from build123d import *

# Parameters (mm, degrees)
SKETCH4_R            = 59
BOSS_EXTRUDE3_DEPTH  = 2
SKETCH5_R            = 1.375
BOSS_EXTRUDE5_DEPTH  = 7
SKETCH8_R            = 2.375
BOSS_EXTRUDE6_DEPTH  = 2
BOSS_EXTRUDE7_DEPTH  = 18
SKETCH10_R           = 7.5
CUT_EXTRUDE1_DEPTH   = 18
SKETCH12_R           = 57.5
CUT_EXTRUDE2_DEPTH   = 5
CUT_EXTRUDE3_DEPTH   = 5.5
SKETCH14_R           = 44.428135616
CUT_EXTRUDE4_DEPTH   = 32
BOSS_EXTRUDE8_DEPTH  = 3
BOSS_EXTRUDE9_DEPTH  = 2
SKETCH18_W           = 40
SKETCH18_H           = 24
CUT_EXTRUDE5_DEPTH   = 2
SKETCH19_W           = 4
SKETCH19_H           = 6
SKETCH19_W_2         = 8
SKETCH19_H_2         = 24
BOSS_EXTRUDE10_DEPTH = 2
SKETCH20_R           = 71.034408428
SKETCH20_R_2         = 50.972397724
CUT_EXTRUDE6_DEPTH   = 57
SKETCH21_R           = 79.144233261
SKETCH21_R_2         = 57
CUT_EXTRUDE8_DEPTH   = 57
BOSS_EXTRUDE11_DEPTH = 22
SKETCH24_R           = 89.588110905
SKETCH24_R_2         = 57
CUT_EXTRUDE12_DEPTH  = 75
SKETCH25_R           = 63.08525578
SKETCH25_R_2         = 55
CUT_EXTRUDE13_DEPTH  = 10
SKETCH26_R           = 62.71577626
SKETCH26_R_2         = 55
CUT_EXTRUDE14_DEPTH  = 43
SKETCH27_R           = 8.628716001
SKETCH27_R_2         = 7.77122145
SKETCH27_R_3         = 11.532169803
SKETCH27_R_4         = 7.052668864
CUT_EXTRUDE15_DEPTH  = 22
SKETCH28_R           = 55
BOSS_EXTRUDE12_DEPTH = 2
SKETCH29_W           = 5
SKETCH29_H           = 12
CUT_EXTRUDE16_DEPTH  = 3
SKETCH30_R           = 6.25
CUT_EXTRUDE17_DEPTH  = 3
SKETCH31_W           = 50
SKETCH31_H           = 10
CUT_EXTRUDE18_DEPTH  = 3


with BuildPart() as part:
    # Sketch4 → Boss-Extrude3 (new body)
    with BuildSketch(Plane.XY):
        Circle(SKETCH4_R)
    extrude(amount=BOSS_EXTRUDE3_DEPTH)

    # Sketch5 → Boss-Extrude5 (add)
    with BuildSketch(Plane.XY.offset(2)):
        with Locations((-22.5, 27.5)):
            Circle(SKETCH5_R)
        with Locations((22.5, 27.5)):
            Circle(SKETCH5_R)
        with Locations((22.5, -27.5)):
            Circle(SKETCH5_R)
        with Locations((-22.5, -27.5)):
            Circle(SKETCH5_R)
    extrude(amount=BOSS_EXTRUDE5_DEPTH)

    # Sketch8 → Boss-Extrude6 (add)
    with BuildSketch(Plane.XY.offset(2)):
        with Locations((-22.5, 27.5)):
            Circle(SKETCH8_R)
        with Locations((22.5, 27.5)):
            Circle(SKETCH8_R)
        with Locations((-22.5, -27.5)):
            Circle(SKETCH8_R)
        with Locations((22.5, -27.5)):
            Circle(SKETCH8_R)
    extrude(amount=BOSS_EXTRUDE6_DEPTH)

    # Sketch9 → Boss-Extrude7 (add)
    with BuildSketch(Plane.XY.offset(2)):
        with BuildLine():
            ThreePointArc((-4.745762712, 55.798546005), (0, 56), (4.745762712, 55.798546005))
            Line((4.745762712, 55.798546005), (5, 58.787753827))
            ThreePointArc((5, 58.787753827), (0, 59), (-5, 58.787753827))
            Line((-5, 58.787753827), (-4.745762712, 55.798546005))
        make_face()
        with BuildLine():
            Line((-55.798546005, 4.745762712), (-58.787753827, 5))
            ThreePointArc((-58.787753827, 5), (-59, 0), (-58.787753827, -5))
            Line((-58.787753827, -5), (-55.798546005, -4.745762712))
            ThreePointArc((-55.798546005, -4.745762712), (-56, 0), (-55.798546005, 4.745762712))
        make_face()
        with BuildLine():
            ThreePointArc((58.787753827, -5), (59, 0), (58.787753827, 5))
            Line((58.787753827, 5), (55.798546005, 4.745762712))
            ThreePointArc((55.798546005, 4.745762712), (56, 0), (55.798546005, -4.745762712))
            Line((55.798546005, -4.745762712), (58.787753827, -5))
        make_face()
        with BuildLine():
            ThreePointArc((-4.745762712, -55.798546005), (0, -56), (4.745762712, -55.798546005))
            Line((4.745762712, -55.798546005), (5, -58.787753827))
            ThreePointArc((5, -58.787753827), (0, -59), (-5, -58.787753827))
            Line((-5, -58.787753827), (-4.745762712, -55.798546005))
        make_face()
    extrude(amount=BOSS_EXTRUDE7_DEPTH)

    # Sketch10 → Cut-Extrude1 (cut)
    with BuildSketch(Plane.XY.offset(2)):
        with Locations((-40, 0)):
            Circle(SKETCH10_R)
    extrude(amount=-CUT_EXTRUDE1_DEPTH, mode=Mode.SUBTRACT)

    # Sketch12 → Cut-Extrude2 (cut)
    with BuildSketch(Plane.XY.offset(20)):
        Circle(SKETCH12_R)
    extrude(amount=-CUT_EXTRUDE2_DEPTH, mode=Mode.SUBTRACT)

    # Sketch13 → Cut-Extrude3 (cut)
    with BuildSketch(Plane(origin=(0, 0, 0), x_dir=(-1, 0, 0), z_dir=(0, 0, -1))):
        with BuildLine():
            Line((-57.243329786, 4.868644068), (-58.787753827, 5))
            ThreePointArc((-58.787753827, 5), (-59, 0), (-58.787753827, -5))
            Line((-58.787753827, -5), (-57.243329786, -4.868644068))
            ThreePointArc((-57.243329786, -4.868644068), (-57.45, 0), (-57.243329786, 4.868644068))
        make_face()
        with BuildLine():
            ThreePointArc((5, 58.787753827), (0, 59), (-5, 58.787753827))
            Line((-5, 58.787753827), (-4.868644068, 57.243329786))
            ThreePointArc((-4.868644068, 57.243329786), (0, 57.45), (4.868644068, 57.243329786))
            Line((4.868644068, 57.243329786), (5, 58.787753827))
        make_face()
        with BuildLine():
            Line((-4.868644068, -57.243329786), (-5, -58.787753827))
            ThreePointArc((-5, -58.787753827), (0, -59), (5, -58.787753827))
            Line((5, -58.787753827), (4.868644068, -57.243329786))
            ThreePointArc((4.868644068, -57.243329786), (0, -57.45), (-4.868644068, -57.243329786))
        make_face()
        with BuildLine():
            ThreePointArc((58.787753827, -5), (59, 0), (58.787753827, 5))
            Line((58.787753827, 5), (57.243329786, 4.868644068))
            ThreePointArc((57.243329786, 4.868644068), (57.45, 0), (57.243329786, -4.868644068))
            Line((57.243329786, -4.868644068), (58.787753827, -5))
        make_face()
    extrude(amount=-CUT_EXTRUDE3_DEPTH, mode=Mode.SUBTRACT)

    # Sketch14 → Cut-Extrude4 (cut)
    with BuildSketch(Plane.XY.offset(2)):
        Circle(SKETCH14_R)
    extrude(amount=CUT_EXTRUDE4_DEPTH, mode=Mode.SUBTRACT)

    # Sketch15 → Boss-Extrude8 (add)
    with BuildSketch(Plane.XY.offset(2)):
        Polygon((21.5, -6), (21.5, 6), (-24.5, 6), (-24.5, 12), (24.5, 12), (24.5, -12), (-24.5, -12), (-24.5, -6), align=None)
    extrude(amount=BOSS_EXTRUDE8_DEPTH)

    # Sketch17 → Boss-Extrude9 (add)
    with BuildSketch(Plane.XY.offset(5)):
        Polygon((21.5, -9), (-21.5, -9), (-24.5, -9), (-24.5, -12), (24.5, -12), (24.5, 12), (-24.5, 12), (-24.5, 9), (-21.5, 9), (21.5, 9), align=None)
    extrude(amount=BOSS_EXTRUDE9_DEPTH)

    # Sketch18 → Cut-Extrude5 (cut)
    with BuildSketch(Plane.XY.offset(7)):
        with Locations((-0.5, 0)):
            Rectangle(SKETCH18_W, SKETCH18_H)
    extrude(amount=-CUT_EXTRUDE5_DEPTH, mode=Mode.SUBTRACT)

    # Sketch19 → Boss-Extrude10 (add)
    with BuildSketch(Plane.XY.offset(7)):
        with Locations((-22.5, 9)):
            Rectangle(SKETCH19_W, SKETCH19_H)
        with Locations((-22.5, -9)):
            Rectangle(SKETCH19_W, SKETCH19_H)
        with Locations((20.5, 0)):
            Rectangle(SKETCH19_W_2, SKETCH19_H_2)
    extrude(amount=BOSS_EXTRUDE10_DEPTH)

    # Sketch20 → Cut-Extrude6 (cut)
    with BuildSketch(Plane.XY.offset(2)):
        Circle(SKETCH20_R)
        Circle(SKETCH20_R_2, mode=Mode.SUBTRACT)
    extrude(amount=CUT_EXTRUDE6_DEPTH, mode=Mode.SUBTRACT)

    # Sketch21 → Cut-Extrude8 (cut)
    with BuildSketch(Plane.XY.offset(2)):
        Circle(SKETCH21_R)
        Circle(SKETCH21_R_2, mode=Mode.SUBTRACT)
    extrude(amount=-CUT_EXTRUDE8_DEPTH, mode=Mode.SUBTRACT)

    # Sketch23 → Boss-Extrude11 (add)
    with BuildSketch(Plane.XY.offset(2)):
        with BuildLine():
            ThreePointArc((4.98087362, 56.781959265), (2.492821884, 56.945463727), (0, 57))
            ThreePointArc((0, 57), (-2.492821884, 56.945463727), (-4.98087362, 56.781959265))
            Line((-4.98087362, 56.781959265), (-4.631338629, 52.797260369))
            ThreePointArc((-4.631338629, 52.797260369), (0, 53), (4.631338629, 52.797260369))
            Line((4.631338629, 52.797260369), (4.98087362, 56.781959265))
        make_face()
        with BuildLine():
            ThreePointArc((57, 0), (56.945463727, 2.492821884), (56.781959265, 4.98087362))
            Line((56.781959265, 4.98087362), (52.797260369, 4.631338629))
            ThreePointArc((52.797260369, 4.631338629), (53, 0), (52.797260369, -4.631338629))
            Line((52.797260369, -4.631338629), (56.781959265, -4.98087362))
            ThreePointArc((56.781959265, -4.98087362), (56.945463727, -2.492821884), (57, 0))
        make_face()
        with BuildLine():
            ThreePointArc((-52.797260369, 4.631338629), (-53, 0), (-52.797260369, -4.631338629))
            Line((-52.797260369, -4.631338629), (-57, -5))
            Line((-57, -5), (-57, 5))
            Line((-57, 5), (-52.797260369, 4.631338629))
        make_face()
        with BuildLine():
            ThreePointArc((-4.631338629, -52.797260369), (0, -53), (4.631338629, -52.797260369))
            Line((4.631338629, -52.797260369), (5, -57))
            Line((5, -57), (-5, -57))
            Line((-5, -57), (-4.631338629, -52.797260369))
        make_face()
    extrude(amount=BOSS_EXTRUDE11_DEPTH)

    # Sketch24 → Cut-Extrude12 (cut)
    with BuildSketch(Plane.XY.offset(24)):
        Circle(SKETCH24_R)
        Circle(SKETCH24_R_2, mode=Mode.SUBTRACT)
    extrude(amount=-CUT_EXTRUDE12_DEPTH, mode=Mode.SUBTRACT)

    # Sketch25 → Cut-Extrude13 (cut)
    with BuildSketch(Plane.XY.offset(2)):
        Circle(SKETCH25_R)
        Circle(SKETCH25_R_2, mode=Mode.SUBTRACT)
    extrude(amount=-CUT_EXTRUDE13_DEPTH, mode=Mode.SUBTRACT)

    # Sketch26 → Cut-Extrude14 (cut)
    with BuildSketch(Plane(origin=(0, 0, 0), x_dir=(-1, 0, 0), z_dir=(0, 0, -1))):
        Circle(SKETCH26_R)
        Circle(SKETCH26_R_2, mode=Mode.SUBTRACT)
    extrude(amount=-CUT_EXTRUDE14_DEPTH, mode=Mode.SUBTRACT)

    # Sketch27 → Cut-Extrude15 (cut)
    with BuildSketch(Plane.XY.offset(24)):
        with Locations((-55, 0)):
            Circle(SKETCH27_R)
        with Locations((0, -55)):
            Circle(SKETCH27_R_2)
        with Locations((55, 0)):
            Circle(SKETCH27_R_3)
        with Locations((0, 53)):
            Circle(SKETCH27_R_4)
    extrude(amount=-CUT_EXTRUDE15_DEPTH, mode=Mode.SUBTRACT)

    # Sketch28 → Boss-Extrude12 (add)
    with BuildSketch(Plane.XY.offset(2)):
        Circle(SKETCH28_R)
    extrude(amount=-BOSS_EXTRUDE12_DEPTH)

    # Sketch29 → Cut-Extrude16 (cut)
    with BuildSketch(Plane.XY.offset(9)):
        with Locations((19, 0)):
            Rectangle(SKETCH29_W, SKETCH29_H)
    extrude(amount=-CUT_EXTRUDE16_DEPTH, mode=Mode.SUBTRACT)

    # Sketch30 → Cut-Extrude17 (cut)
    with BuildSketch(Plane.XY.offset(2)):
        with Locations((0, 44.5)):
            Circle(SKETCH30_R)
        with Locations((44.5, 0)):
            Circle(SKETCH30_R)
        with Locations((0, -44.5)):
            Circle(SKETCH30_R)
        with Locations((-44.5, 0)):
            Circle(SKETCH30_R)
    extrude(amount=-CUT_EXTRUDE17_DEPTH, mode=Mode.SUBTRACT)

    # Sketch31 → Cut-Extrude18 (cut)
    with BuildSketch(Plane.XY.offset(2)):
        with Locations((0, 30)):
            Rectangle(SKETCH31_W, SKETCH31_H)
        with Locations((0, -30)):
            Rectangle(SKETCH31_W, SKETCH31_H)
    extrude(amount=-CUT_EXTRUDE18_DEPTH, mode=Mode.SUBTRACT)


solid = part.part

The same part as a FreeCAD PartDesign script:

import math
import FreeCAD as App
import Part
import Sketcher
from FreeCAD import Vector

doc = App.newDocument("Part")
body = doc.addObject("PartDesign::Body", "Body")

# Sketch on XY plane
sketch1 = doc.addObject("Sketcher::SketchObject", "Sketch")
body.addObject(sketch1)
sketch1.AttachmentSupport = (doc.XY_Plane, [""])
sketch1.MapMode = "FlatFace"
sketch1.addGeometry(Part.Circle(Vector(0, 0, 0), Vector(0, 0, 1), 59), False)
sketch1.addConstraint(Sketcher.Constraint("Coincident", 0, 3, -1, 1))
sketch1.addConstraint(Sketcher.Constraint("Diameter", 0, 118.0))
pad1 = doc.addObject("PartDesign::Pad", "Pad")
body.addObject(pad1)
pad1.Profile = sketch1
pad1.Length = 2

# Sketch on XY plane
sketch2 = doc.addObject("Sketcher::SketchObject", "Sketch001")
body.addObject(sketch2)
sketch2.AttachmentSupport = (doc.XY_Plane, [""])
sketch2.MapMode = "FlatFace"
sketch2.AttachmentOffset = App.Placement(Vector(0, 0, 2), App.Rotation())
sketch2.addGeometry(Part.Circle(Vector(-22.5, 27.5, 0), Vector(0, 0, 1), 1.4), False)
sketch2.addGeometry(Part.Circle(Vector(22.5, 27.5, 0), Vector(0, 0, 1), 1.4), False)
sketch2.addGeometry(Part.Circle(Vector(22.5, -27.5, 0), Vector(0, 0, 1), 1.4), False)
sketch2.addGeometry(Part.Circle(Vector(-22.5, -27.5, 0), Vector(0, 0, 1), 1.4), False)
sketch2.addConstraint(Sketcher.Constraint("Equal", 0, 1))
sketch2.addConstraint(Sketcher.Constraint("Equal", 1, 2))
sketch2.addConstraint(Sketcher.Constraint("Equal", 2, 3))
sketch2.addConstraint(Sketcher.Constraint("Symmetric", 0, 3, 2, 3, -1, 1))
sketch2.addConstraint(Sketcher.Constraint("Symmetric", 1, 3, 3, 3, -1, 1))
sketch2.addConstraint(Sketcher.Constraint("Symmetric", 0, 3, 1, 3, -2))
sketch2.addConstraint(Sketcher.Constraint("Diameter", 0, 2.75))
sketch2.addConstraint(Sketcher.Constraint("DistanceX", 0, 3, 1, 3, 45.0))
sketch2.addConstraint(Sketcher.Constraint("DistanceY", 2, 3, 1, 3, 55.0))
pad2 = doc.addObject("PartDesign::Pad", "Pad001")
body.addObject(pad2)
pad2.Profile = sketch2
pad2.Length = 7

# Sketch on XY plane
sketch3 = doc.addObject("Sketcher::SketchObject", "Sketch002")
body.addObject(sketch3)
sketch3.AttachmentSupport = (doc.XY_Plane, [""])
sketch3.MapMode = "FlatFace"
sketch3.AttachmentOffset = App.Placement(Vector(0, 0, 2), App.Rotation())
sketch3.addGeometry(Part.Circle(Vector(-22.5, 27.5, 0), Vector(0, 0, 1), 2.4), False)
sketch3.addGeometry(Part.Circle(Vector(22.5, 27.5, 0), Vector(0, 0, 1), 2.4), False)
sketch3.addGeometry(Part.Circle(Vector(-22.5, -27.5, 0), Vector(0, 0, 1), 2.4), False)
sketch3.addGeometry(Part.Circle(Vector(22.5, -27.5, 0), Vector(0, 0, 1), 2.4), False)
sketch3.addConstraint(Sketcher.Constraint("Equal", 0, 1))
sketch3.addConstraint(Sketcher.Constraint("Equal", 1, 2))
sketch3.addConstraint(Sketcher.Constraint("Equal", 2, 3))
sketch3.addConstraint(Sketcher.Constraint("Symmetric", 1, 3, 2, 3, -1, 1))
sketch3.addConstraint(Sketcher.Constraint("Symmetric", 0, 3, 3, 3, -1, 1))
sketch3.addConstraint(Sketcher.Constraint("Symmetric", 0, 3, 1, 3, -2))
sketch3.addConstraint(Sketcher.Constraint("Diameter", 0, 4.75))
sketch3.addConstraint(Sketcher.Constraint("DistanceX", 0, 3, 1, 3, 45.0))
sketch3.addConstraint(Sketcher.Constraint("DistanceY", 2, 3, 0, 3, 55.0))
pad3 = doc.addObject("PartDesign::Pad", "Pad002")
body.addObject(pad3)
pad3.Profile = sketch3
pad3.Length = 2

# Sketch on XY plane
sketch4 = doc.addObject("Sketcher::SketchObject", "Sketch003")
body.addObject(sketch4)
sketch4.AttachmentSupport = (doc.XY_Plane, [""])
sketch4.MapMode = "FlatFace"
sketch4.AttachmentOffset = App.Placement(Vector(0, 0, 2), App.Rotation())
sketch4.addGeometry(Part.ArcOfCircle(Part.Circle(Vector(0, 0, 0), Vector(0, 0, 1), 56), math.radians(85.14), math.radians(94.86)), False)
sketch4.addGeometry(Part.LineSegment(Vector(4.7, 55.8, 0), Vector(5, 58.8, 0)), False)
sketch4.addGeometry(Part.ArcOfCircle(Part.Circle(Vector(0, 0, 0), Vector(0, 0, 1), 59), math.radians(85.14), math.radians(94.86)), False)
sketch4.addGeometry(Part.LineSegment(Vector(-5, 58.8, 0), Vector(-4.7, 55.8, 0)), False)
sketch4.addGeometry(Part.LineSegment(Vector(-55.8, 4.7, 0), Vector(-58.8, 5, 0)), False)
sketch4.addGeometry(Part.ArcOfCircle(Part.Circle(Vector(0, 0, 0), Vector(0, 0, 1), 59), math.radians(175.14), math.radians(184.86)), False)
sketch4.addGeometry(Part.LineSegment(Vector(-58.8, -5, 0), Vector(-55.8, -4.7, 0)), False)
sketch4.addGeometry(Part.ArcOfCircle(Part.Circle(Vector(0, 0, 0), Vector(0, 0, 1), 56), math.radians(175.14), math.radians(184.86)), False)
sketch4.addGeometry(Part.ArcOfCircle(Part.Circle(Vector(0, 0, 0), Vector(0, 0, 1), 59), math.radians(-4.86), math.radians(4.86)), False)
sketch4.addGeometry(Part.LineSegment(Vector(58.8, 5, 0), Vector(55.8, 4.7, 0)), False)
sketch4.addGeometry(Part.ArcOfCircle(Part.Circle(Vector(0, 0, 0), Vector(0, 0, 1), 56), math.radians(-4.86), math.radians(4.86)), False)
sketch4.addGeometry(Part.LineSegment(Vector(55.8, -4.7, 0), Vector(58.8, -5, 0)), False)
sketch4.addGeometry(Part.ArcOfCircle(Part.Circle(Vector(0, 0, 0), Vector(0, 0, 1), 56), math.radians(-94.86), math.radians(-85.14)), False)
sketch4.addGeometry(Part.LineSegment(Vector(-4.7, -55.8, 0), Vector(-5, -58.8, 0)), False)
sketch4.addGeometry(Part.ArcOfCircle(Part.Circle(Vector(0, 0, 0), Vector(0, 0, 1), 59), math.radians(-94.86), math.radians(-85.14)), False)
sketch4.addGeometry(Part.LineSegment(Vector(5, -58.8, 0), Vector(4.7, -55.8, 0)), False)
sketch4.addConstraint(Sketcher.Constraint("Coincident", 0, 1, 1, 1))
sketch4.addConstraint(Sketcher.Constraint("Coincident", 1, 2, 2, 1))
sketch4.addConstraint(Sketcher.Constraint("Coincident", 2, 2, 3, 1))
sketch4.addConstraint(Sketcher.Constraint("Coincident", 3, 2, 0, 2))
sketch4.addConstraint(Sketcher.Constraint("Coincident", 4, 2, 5, 1))
sketch4.addConstraint(Sketcher.Constraint("Coincident", 5, 2, 6, 1))
sketch4.addConstraint(Sketcher.Constraint("Coincident", 6, 2, 7, 2))
sketch4.addConstraint(Sketcher.Constraint("Coincident", 7, 1, 4, 1))
sketch4.addConstraint(Sketcher.Constraint("Coincident", 8, 2, 9, 1))
sketch4.addConstraint(Sketcher.Constraint("Coincident", 9, 2, 10, 2))
sketch4.addConstraint(Sketcher.Constraint("Coincident", 10, 1, 11, 1))
sketch4.addConstraint(Sketcher.Constraint("Coincident", 11, 2, 8, 1))
sketch4.addConstraint(Sketcher.Constraint("Coincident", 12, 1, 13, 1))
sketch4.addConstraint(Sketcher.Constraint("Coincident", 13, 2, 14, 1))
sketch4.addConstraint(Sketcher.Constraint("Coincident", 14, 2, 15, 1))
sketch4.addConstraint(Sketcher.Constraint("Coincident", 15, 2, 12, 2))
sketch4.addConstraint(Sketcher.Constraint("Coincident", 0, 3, -1, 1))
sketch4.addConstraint(Sketcher.Constraint("Coincident", 2, 3, -1, 1))
sketch4.addConstraint(Sketcher.Constraint("Coincident", 5, 3, -1, 1))
sketch4.addConstraint(Sketcher.Constraint("Coincident", 7, 3, -1, 1))
sketch4.addConstraint(Sketcher.Constraint("Coincident", 8, 3, -1, 1))
sketch4.addConstraint(Sketcher.Constraint("Coincident", 10, 3, -1, 1))
sketch4.addConstraint(Sketcher.Constraint("Coincident", 12, 3, -1, 1))
sketch4.addConstraint(Sketcher.Constraint("Coincident", 14, 3, -1, 1))
sketch4.addConstraint(Sketcher.Constraint("Equal", 2, 5))
sketch4.addConstraint(Sketcher.Constraint("Equal", 0, 7))
sketch4.addConstraint(Sketcher.Constraint("Equal", 5, 8))
sketch4.addConstraint(Sketcher.Constraint("Equal", 7, 10))
sketch4.addConstraint(Sketcher.Constraint("Equal", 10, 12))
sketch4.addConstraint(Sketcher.Constraint("Equal", 8, 14))
sketch4.addConstraint(Sketcher.Constraint("Perpendicular", 1, 4))
sketch4.addConstraint(Sketcher.Constraint("Perpendicular", 3, 6))
sketch4.addConstraint(Sketcher.Constraint("Parallel", 6, 9))
sketch4.addConstraint(Sketcher.Constraint("Parallel", 4, 11))
sketch4.addConstraint(Sketcher.Constraint("Perpendicular", 11, 13))
sketch4.addConstraint(Sketcher.Constraint("Perpendicular", 9, 15))
sketch4.addConstraint(Sketcher.Constraint("Horizontal", 1, 2, 2, 2))
sketch4.addConstraint(Sketcher.Constraint("Horizontal", 0, 1, 3, 2))
sketch4.addConstraint(Sketcher.Constraint("Horizontal", 4, 2, 8, 2))
sketch4.addConstraint(Sketcher.Constraint("Horizontal", 6, 2, 10, 1))
sketch4.addConstraint(Sketcher.Constraint("Horizontal", 13, 2, 14, 2))
sketch4.addConstraint(Sketcher.Constraint("Vertical", 4, 2, 5, 2))
sketch4.addConstraint(Sketcher.Constraint("Vertical", 3, 2, 12, 1))
sketch4.addConstraint(Sketcher.Constraint("Radius", 0, 56.0))
sketch4.addConstraint(Sketcher.Constraint("Radius", 2, 59.0))
sketch4.addConstraint(Sketcher.Constraint("DistanceX", -1, 1, 1, 2, 5.0))
sketch4.addConstraint(Sketcher.Constraint("DistanceY", -1, 1, 4, 2, 5.0))
sketch4.addConstraint(Sketcher.Constraint("DistanceX", -1, 1, 0, 1, 4.745763))
pad4 = doc.addObject("PartDesign::Pad", "Pad003")
body.addObject(pad4)
pad4.Profile = sketch4
pad4.Length = 18

# Sketch on XY plane
sketch5 = doc.addObject("Sketcher::SketchObject", "Sketch004")
body.addObject(sketch5)
sketch5.AttachmentSupport = (doc.XY_Plane, [""])
sketch5.MapMode = "FlatFace"
sketch5.AttachmentOffset = App.Placement(Vector(0, 0, 2), App.Rotation())
sketch5.addGeometry(Part.Circle(Vector(-40, 0, 0), Vector(0, 0, 1), 8), False)
sketch5.addConstraint(Sketcher.Constraint("PointOnObject", 0, 3, -1))
sketch5.addConstraint(Sketcher.Constraint("Diameter", 0, 15.0))
sketch5.addConstraint(Sketcher.Constraint("DistanceX", 0, 3, -1, 1, 40.0))
pocket1 = doc.addObject("PartDesign::Pocket", "Pocket")
body.addObject(pocket1)
pocket1.Profile = sketch5
pocket1.Length = 18

# Sketch on XY plane
sketch6 = doc.addObject("Sketcher::SketchObject", "Sketch005")
body.addObject(sketch6)
sketch6.AttachmentSupport = (doc.XY_Plane, [""])
sketch6.MapMode = "FlatFace"
sketch6.AttachmentOffset = App.Placement(Vector(0, 0, 20), App.Rotation())
sketch6.addGeometry(Part.Circle(Vector(0, 0, 0), Vector(0, 0, 1), 58), False)
sketch6.addConstraint(Sketcher.Constraint("Coincident", 0, 3, -1, 1))
sketch6.addConstraint(Sketcher.Constraint("Diameter", 0, 115.0))
pocket2 = doc.addObject("PartDesign::Pocket", "Pocket001")
body.addObject(pocket2)
pocket2.Profile = sketch6
pocket2.Length = 5

# Sketch on XY plane
sketch7 = doc.addObject("Sketcher::SketchObject", "Sketch006")
body.addObject(sketch7)
sketch7.AttachmentSupport = (doc.XY_Plane, [""])
sketch7.MapMode = "FlatFace"
sketch7.addGeometry(Part.LineSegment(Vector(57.2, 4.9, 0), Vector(58.8, 5, 0)), False)
sketch7.addGeometry(Part.ArcOfCircle(Part.Circle(Vector(0, 0, 0), Vector(0, 0, 1), 59), math.radians(-4.86), math.radians(4.86)), False)
sketch7.addGeometry(Part.LineSegment(Vector(58.8, -5, 0), Vector(57.2, -4.9, 0)), False)
sketch7.addGeometry(Part.ArcOfCircle(Part.Circle(Vector(0, 0, 0), Vector(0, 0, 1), 57.5), math.radians(-4.86), math.radians(4.86)), False)
sketch7.addGeometry(Part.ArcOfCircle(Part.Circle(Vector(0, 0, 0), Vector(0, 0, 1), 59), math.radians(85.14), math.radians(94.86)), False)
sketch7.addGeometry(Part.LineSegment(Vector(5, 58.8, 0), Vector(4.9, 57.2, 0)), False)
sketch7.addGeometry(Part.ArcOfCircle(Part.Circle(Vector(0, 0, 0), Vector(0, 0, 1), 57.5), math.radians(85.14), math.radians(94.86)), False)
sketch7.addGeometry(Part.LineSegment(Vector(-4.9, 57.2, 0), Vector(-5, 58.8, 0)), False)
sketch7.addGeometry(Part.LineSegment(Vector(4.9, -57.2, 0), Vector(5, -58.8, 0)), False)
sketch7.addGeometry(Part.ArcOfCircle(Part.Circle(Vector(0, 0, 0), Vector(0, 0, 1), 59), math.radians(-94.86), math.radians(-85.14)), False)
sketch7.addGeometry(Part.LineSegment(Vector(-5, -58.8, 0), Vector(-4.9, -57.2, 0)), False)
sketch7.addGeometry(Part.ArcOfCircle(Part.Circle(Vector(0, 0, 0), Vector(0, 0, 1), 57.5), math.radians(-94.86), math.radians(-85.14)), False)
sketch7.addGeometry(Part.ArcOfCircle(Part.Circle(Vector(0, 0, 0), Vector(0, 0, 1), 59), math.radians(175.14), math.radians(184.86)), False)
sketch7.addGeometry(Part.LineSegment(Vector(-58.8, 5, 0), Vector(-57.2, 4.9, 0)), False)
sketch7.addGeometry(Part.ArcOfCircle(Part.Circle(Vector(0, 0, 0), Vector(0, 0, 1), 57.5), math.radians(175.14), math.radians(184.86)), False)
sketch7.addGeometry(Part.LineSegment(Vector(-57.2, -4.9, 0), Vector(-58.8, -5, 0)), False)
sketch7.addConstraint(Sketcher.Constraint("Coincident", 0, 2, 1, 2))
sketch7.addConstraint(Sketcher.Constraint("Coincident", 1, 1, 2, 1))
sketch7.addConstraint(Sketcher.Constraint("Coincident", 2, 2, 3, 1))
sketch7.addConstraint(Sketcher.Constraint("Coincident", 3, 2, 0, 1))
sketch7.addConstraint(Sketcher.Constraint("Coincident", 4, 1, 5, 1))
sketch7.addConstraint(Sketcher.Constraint("Coincident", 5, 2, 6, 1))
sketch7.addConstraint(Sketcher.Constraint("Coincident", 6, 2, 7, 1))
sketch7.addConstraint(Sketcher.Constraint("Coincident", 7, 2, 4, 2))
sketch7.addConstraint(Sketcher.Constraint("Coincident", 8, 2, 9, 2))
sketch7.addConstraint(Sketcher.Constraint("Coincident", 9, 1, 10, 1))
sketch7.addConstraint(Sketcher.Constraint("Coincident", 10, 2, 11, 1))
sketch7.addConstraint(Sketcher.Constraint("Coincident", 11, 2, 8, 1))
sketch7.addConstraint(Sketcher.Constraint("Coincident", 12, 1, 13, 1))
sketch7.addConstraint(Sketcher.Constraint("Coincident", 13, 2, 14, 1))
sketch7.addConstraint(Sketcher.Constraint("Coincident", 14, 2, 15, 1))
sketch7.addConstraint(Sketcher.Constraint("Coincident", 15, 2, 12, 2))
sketch7.addConstraint(Sketcher.Constraint("Coincident", 1, 3, -1, 1))
sketch7.addConstraint(Sketcher.Constraint("Coincident", 3, 3, -1, 1))
sketch7.addConstraint(Sketcher.Constraint("Coincident", 4, 3, -1, 1))
sketch7.addConstraint(Sketcher.Constraint("Coincident", 6, 3, -1, 1))
sketch7.addConstraint(Sketcher.Constraint("Coincident", 9, 3, -1, 1))
sketch7.addConstraint(Sketcher.Constraint("Coincident", 11, 3, -1, 1))
sketch7.addConstraint(Sketcher.Constraint("Coincident", 12, 3, -1, 1))
sketch7.addConstraint(Sketcher.Constraint("Coincident", 14, 3, -1, 1))
sketch7.addConstraint(Sketcher.Constraint("Equal", 1, 4))
sketch7.addConstraint(Sketcher.Constraint("Equal", 3, 6))
sketch7.addConstraint(Sketcher.Constraint("Equal", 4, 9))
sketch7.addConstraint(Sketcher.Constraint("Equal", 6, 11))
sketch7.addConstraint(Sketcher.Constraint("Equal", 9, 12))
sketch7.addConstraint(Sketcher.Constraint("Equal", 11, 14))
sketch7.addConstraint(Sketcher.Constraint("Perpendicular", 2, 5))
sketch7.addConstraint(Sketcher.Constraint("Perpendicular", 0, 7))
sketch7.addConstraint(Sketcher.Constraint("Parallel", 7, 8))
sketch7.addConstraint(Sketcher.Constraint("Parallel", 5, 10))
sketch7.addConstraint(Sketcher.Constraint("Perpendicular", 10, 13))
sketch7.addConstraint(Sketcher.Constraint("Perpendicular", 8, 15))
sketch7.addConstraint(Sketcher.Constraint("Horizontal", 5, 2, 6, 2))
sketch7.addConstraint(Sketcher.Constraint("Horizontal", 4, 1, 7, 2))
sketch7.addConstraint(Sketcher.Constraint("Horizontal", 8, 2, 9, 1))
sketch7.addConstraint(Sketcher.Constraint("Horizontal", 0, 2, 12, 1))
sketch7.addConstraint(Sketcher.Constraint("Horizontal", 2, 2, 14, 2))
sketch7.addConstraint(Sketcher.Constraint("Vertical", 0, 2, 1, 1))
sketch7.addConstraint(Sketcher.Constraint("Vertical", 4, 1, 8, 2))
sketch7.addConstraint(Sketcher.Constraint("Radius", 1, 59.0))
sketch7.addConstraint(Sketcher.Constraint("Radius", 3, 57.45))
sketch7.addConstraint(Sketcher.Constraint("DistanceY", -1, 1, 0, 2, 5.0))
sketch7.addConstraint(Sketcher.Constraint("DistanceX", -1, 1, 4, 1, 5.0))
sketch7.addConstraint(Sketcher.Constraint("DistanceX", -1, 1, 2, 2, 57.24333))
pocket3 = doc.addObject("PartDesign::Pocket", "Pocket002")
body.addObject(pocket3)
pocket3.Profile = sketch7
pocket3.Length = 5.5
pocket3.Reversed = True

# Sketch on XY plane
sketch8 = doc.addObject("Sketcher::SketchObject", "Sketch007")
body.addObject(sketch8)
sketch8.AttachmentSupport = (doc.XY_Plane, [""])
sketch8.MapMode = "FlatFace"
sketch8.AttachmentOffset = App.Placement(Vector(0, 0, 2), App.Rotation())
sketch8.addGeometry(Part.Circle(Vector(0, 0, 0), Vector(0, 0, 1), 44), False)
sketch8.addConstraint(Sketcher.Constraint("Coincident", 0, 3, -1, 1))
sketch8.addConstraint(Sketcher.Constraint("Diameter", 0, 88.856271))
pocket4 = doc.addObject("PartDesign::Pocket", "Pocket003")
body.addObject(pocket4)
pocket4.Profile = sketch8
pocket4.Length = 32
pocket4.Reversed = True

# Sketch on XY plane
sketch9 = doc.addObject("Sketcher::SketchObject", "Sketch008")
body.addObject(sketch9)
sketch9.AttachmentSupport = (doc.XY_Plane, [""])
sketch9.MapMode = "FlatFace"
sketch9.AttachmentOffset = App.Placement(Vector(0, 0, 2), App.Rotation())
sketch9.addGeometry(Part.LineSegment(Vector(22, 6, 0), Vector(22, -6, 0)), False)
sketch9.addGeometry(Part.LineSegment(Vector(22, -6, 0), Vector(-24, -6, 0)), False)
sketch9.addGeometry(Part.LineSegment(Vector(-24, -6, 0), Vector(-24, -12, 0)), False)
sketch9.addGeometry(Part.LineSegment(Vector(-24, -12, 0), Vector(24, -12, 0)), False)
sketch9.addGeometry(Part.LineSegment(Vector(24, -12, 0), Vector(24, 12, 0)), False)
sketch9.addGeometry(Part.LineSegment(Vector(24, 12, 0), Vector(-24, 12, 0)), False)
sketch9.addGeometry(Part.LineSegment(Vector(-24, 12, 0), Vector(-24, 6, 0)), False)
sketch9.addGeometry(Part.LineSegment(Vector(-24, 6, 0), Vector(22, 6, 0)), False)
sketch9.addConstraint(Sketcher.Constraint("Coincident", 0, 2, 1, 1))
sketch9.addConstraint(Sketcher.Constraint("Coincident", 1, 2, 2, 1))
sketch9.addConstraint(Sketcher.Constraint("Coincident", 2, 2, 3, 1))
sketch9.addConstraint(Sketcher.Constraint("Coincident", 3, 2, 4, 1))
sketch9.addConstraint(Sketcher.Constraint("Coincident", 4, 2, 5, 1))
sketch9.addConstraint(Sketcher.Constraint("Coincident", 5, 2, 6, 1))
sketch9.addConstraint(Sketcher.Constraint("Coincident", 6, 2, 7, 1))
sketch9.addConstraint(Sketcher.Constraint("Coincident", 7, 2, 0, 1))
sketch9.addConstraint(Sketcher.Constraint("Vertical", 0))
sketch9.addConstraint(Sketcher.Constraint("Horizontal", 1))
sketch9.addConstraint(Sketcher.Constraint("Vertical", 2))
sketch9.addConstraint(Sketcher.Constraint("Horizontal", 3))
sketch9.addConstraint(Sketcher.Constraint("Vertical", 4))
sketch9.addConstraint(Sketcher.Constraint("Horizontal", 5))
sketch9.addConstraint(Sketcher.Constraint("Vertical", 6))
sketch9.addConstraint(Sketcher.Constraint("Horizontal", 7))
sketch9.addConstraint(Sketcher.Constraint("Symmetric", 2, 2, 4, 2, -1, 1))
sketch9.addConstraint(Sketcher.Constraint("Symmetric", 1, 2, 6, 2, -1))
sketch9.addConstraint(Sketcher.Constraint("DistanceX", 1, 2, 1, 1, 46.0))
sketch9.addConstraint(Sketcher.Constraint("DistanceX", 3, 1, 3, 2, 49.0))
sketch9.addConstraint(Sketcher.Constraint("DistanceY", 0, 2, 0, 1, 12.0))
sketch9.addConstraint(Sketcher.Constraint("DistanceY", 2, 2, 2, 1, 6.0))
pad5 = doc.addObject("PartDesign::Pad", "Pad004")
body.addObject(pad5)
pad5.Profile = sketch9
pad5.Length = 3

# Sketch on XY plane
sketch10 = doc.addObject("Sketcher::SketchObject", "Sketch009")
body.addObject(sketch10)
sketch10.AttachmentSupport = (doc.XY_Plane, [""])
sketch10.MapMode = "FlatFace"
sketch10.AttachmentOffset = App.Placement(Vector(0, 0, 5), App.Rotation())
sketch10.addGeometry(Part.LineSegment(Vector(21.5, -9, 0), Vector(-24.5, -9, 0)), False)
sketch10.addGeometry(Part.LineSegment(Vector(-24.5, -9, 0), Vector(-24.5, -12, 0)), False)
sketch10.addGeometry(Part.LineSegment(Vector(-24.5, -12, 0), Vector(24.5, -12, 0)), False)
sketch10.addGeometry(Part.LineSegment(Vector(24.5, -12, 0), Vector(24.5, 12, 0)), False)
sketch10.addGeometry(Part.LineSegment(Vector(24.5, 12, 0), Vector(-24.5, 12, 0)), False)
sketch10.addGeometry(Part.LineSegment(Vector(-24.5, 12, 0), Vector(-24.5, 9, 0)), False)
sketch10.addGeometry(Part.LineSegment(Vector(-24.5, 9, 0), Vector(21.5, 9, 0)), False)
sketch10.addGeometry(Part.LineSegment(Vector(21.5, 9, 0), Vector(21.5, -9, 0)), False)
sketch10.addConstraint(Sketcher.Constraint("Coincident", 0, 2, 1, 1))
sketch10.addConstraint(Sketcher.Constraint("Coincident", 1, 2, 2, 1))
sketch10.addConstraint(Sketcher.Constraint("Coincident", 2, 2, 3, 1))
sketch10.addConstraint(Sketcher.Constraint("Coincident", 3, 2, 4, 1))
sketch10.addConstraint(Sketcher.Constraint("Coincident", 4, 2, 5, 1))
sketch10.addConstraint(Sketcher.Constraint("Coincident", 5, 2, 6, 1))
sketch10.addConstraint(Sketcher.Constraint("Coincident", 6, 2, 7, 1))
sketch10.addConstraint(Sketcher.Constraint("Coincident", 7, 2, 0, 1))
sketch10.addConstraint(Sketcher.Constraint("Horizontal", 0))
sketch10.addConstraint(Sketcher.Constraint("Vertical", 1))
sketch10.addConstraint(Sketcher.Constraint("Horizontal", 2))
sketch10.addConstraint(Sketcher.Constraint("Vertical", 3))
sketch10.addConstraint(Sketcher.Constraint("Horizontal", 4))
sketch10.addConstraint(Sketcher.Constraint("Vertical", 5))
sketch10.addConstraint(Sketcher.Constraint("Horizontal", 6))
sketch10.addConstraint(Sketcher.Constraint("Vertical", 7))
sketch10.addConstraint(Sketcher.Constraint("Symmetric", 1, 2, 3, 2, -1, 1))
sketch10.addConstraint(Sketcher.Constraint("Symmetric", 0, 2, 5, 2, -1))
sketch10.addConstraint(Sketcher.Constraint("DistanceX", 0, 2, 0, 1, 46.0))
sketch10.addConstraint(Sketcher.Constraint("DistanceX", 2, 1, 2, 2, 49.0))
sketch10.addConstraint(Sketcher.Constraint("DistanceY", 1, 2, 1, 1, 3.0))
sketch10.addConstraint(Sketcher.Constraint("DistanceY", 3, 1, 3, 2, 24.0))
pad6 = doc.addObject("PartDesign::Pad", "Pad005")
body.addObject(pad6)
pad6.Profile = sketch10
pad6.Length = 2

# Sketch on XY plane
sketch11 = doc.addObject("Sketcher::SketchObject", "Sketch010")
body.addObject(sketch11)
sketch11.AttachmentSupport = (doc.XY_Plane, [""])
sketch11.MapMode = "FlatFace"
sketch11.AttachmentOffset = App.Placement(Vector(0, 0, 7), App.Rotation())
sketch11.addGeometry(Part.LineSegment(Vector(-20, 12, 0), Vector(-20, -12, 0)), False)
sketch11.addGeometry(Part.LineSegment(Vector(-20, -12, 0), Vector(20, -12, 0)), False)
sketch11.addGeometry(Part.LineSegment(Vector(20, -12, 0), Vector(20, 12, 0)), False)
sketch11.addGeometry(Part.LineSegment(Vector(20, 12, 0), Vector(-20, 12, 0)), False)
sketch11.addConstraint(Sketcher.Constraint("Coincident", 0, 2, 1, 1))
sketch11.addConstraint(Sketcher.Constraint("Coincident", 1, 2, 2, 1))
sketch11.addConstraint(Sketcher.Constraint("Coincident", 2, 2, 3, 1))
sketch11.addConstraint(Sketcher.Constraint("Coincident", 3, 2, 0, 1))
sketch11.addConstraint(Sketcher.Constraint("Vertical", 0))
sketch11.addConstraint(Sketcher.Constraint("Horizontal", 1))
sketch11.addConstraint(Sketcher.Constraint("Vertical", 2))
sketch11.addConstraint(Sketcher.Constraint("Horizontal", 3))
sketch11.addConstraint(Sketcher.Constraint("DistanceX", 1, 1, 1, 2, 40.0))
sketch11.addConstraint(Sketcher.Constraint("DistanceY", 0, 2, 0, 1, 24.0))
sketch11.addConstraint(Sketcher.Constraint("DistanceY", 0, 2, -1, 1, 12.0))
sketch11.addConstraint(Sketcher.Constraint("DistanceX", 0, 2, -1, 1, 20.5))
pocket5 = doc.addObject("PartDesign::Pocket", "Pocket004")
body.addObject(pocket5)
pocket5.Profile = sketch11
pocket5.Length = 2

# Sketch on XY plane
sketch12 = doc.addObject("Sketcher::SketchObject", "Sketch011")
body.addObject(sketch12)
sketch12.AttachmentSupport = (doc.XY_Plane, [""])
sketch12.MapMode = "FlatFace"
sketch12.AttachmentOffset = App.Placement(Vector(0, 0, 7), App.Rotation())
sketch12.addGeometry(Part.LineSegment(Vector(-24.5, 12, 0), Vector(-24.5, 6, 0)), False)
sketch12.addGeometry(Part.LineSegment(Vector(-24.5, 6, 0), Vector(-20.5, 6, 0)), False)
sketch12.addGeometry(Part.LineSegment(Vector(-20.5, 6, 0), Vector(-20.5, 12, 0)), False)
sketch12.addGeometry(Part.LineSegment(Vector(-20.5, 12, 0), Vector(-24.5, 12, 0)), False)
sketch12.addGeometry(Part.LineSegment(Vector(-24.5, -6, 0), Vector(-24.5, -12, 0)), False)
sketch12.addGeometry(Part.LineSegment(Vector(-24.5, -12, 0), Vector(-20.5, -12, 0)), False)
sketch12.addGeometry(Part.LineSegment(Vector(-20.5, -12, 0), Vector(-20.5, -6, 0)), False)
sketch12.addGeometry(Part.LineSegment(Vector(-20.5, -6, 0), Vector(-24.5, -6, 0)), False)
sketch12.addGeometry(Part.LineSegment(Vector(16.5, 12, 0), Vector(16.5, -12, 0)), False)
sketch12.addGeometry(Part.LineSegment(Vector(16.5, -12, 0), Vector(24.5, -12, 0)), False)
sketch12.addGeometry(Part.LineSegment(Vector(24.5, -12, 0), Vector(24.5, 12, 0)), False)
sketch12.addGeometry(Part.LineSegment(Vector(24.5, 12, 0), Vector(16.5, 12, 0)), False)
sketch12.addConstraint(Sketcher.Constraint("Coincident", 0, 2, 1, 1))
sketch12.addConstraint(Sketcher.Constraint("Coincident", 1, 2, 2, 1))
sketch12.addConstraint(Sketcher.Constraint("Coincident", 2, 2, 3, 1))
sketch12.addConstraint(Sketcher.Constraint("Coincident", 3, 2, 0, 1))
sketch12.addConstraint(Sketcher.Constraint("Coincident", 4, 2, 5, 1))
sketch12.addConstraint(Sketcher.Constraint("Coincident", 5, 2, 6, 1))
sketch12.addConstraint(Sketcher.Constraint("Coincident", 6, 2, 7, 1))
sketch12.addConstraint(Sketcher.Constraint("Coincident", 7, 2, 4, 1))
sketch12.addConstraint(Sketcher.Constraint("Coincident", 8, 2, 9, 1))
sketch12.addConstraint(Sketcher.Constraint("Coincident", 9, 2, 10, 1))
sketch12.addConstraint(Sketcher.Constraint("Coincident", 10, 2, 11, 1))
sketch12.addConstraint(Sketcher.Constraint("Coincident", 11, 2, 8, 1))
sketch12.addConstraint(Sketcher.Constraint("Vertical", 0))
sketch12.addConstraint(Sketcher.Constraint("Horizontal", 1))
sketch12.addConstraint(Sketcher.Constraint("Vertical", 2))
sketch12.addConstraint(Sketcher.Constraint("Horizontal", 3))
sketch12.addConstraint(Sketcher.Constraint("Vertical", 4))
sketch12.addConstraint(Sketcher.Constraint("Horizontal", 5))
sketch12.addConstraint(Sketcher.Constraint("Vertical", 6))
sketch12.addConstraint(Sketcher.Constraint("Horizontal", 7))
sketch12.addConstraint(Sketcher.Constraint("Vertical", 8))
sketch12.addConstraint(Sketcher.Constraint("Horizontal", 9))
sketch12.addConstraint(Sketcher.Constraint("Vertical", 10))
sketch12.addConstraint(Sketcher.Constraint("Horizontal", 11))
sketch12.addConstraint(Sketcher.Constraint("Symmetric", 3, 2, 9, 2, -1, 1))
sketch12.addConstraint(Sketcher.Constraint("Symmetric", 4, 2, 10, 2, -1, 1))
sketch12.addConstraint(Sketcher.Constraint("Symmetric", 2, 2, 5, 2, -1))
sketch12.addConstraint(Sketcher.Constraint("Equal", 2, 4))
sketch12.addConstraint(Sketcher.Constraint("DistanceX", 1, 1, 1, 2, 4.0))
sketch12.addConstraint(Sketcher.Constraint("DistanceX", 9, 1, 9, 2, 8.0))
sketch12.addConstraint(Sketcher.Constraint("DistanceY", 0, 2, 0, 1, 6.0))
sketch12.addConstraint(Sketcher.Constraint("DistanceY", 8, 2, 8, 1, 24.0))
sketch12.addConstraint(Sketcher.Constraint("DistanceX", 5, 2, 8, 2, 37.0))
pad7 = doc.addObject("PartDesign::Pad", "Pad006")
body.addObject(pad7)
pad7.Profile = sketch12
pad7.Length = 2

# Sketch on XY plane
sketch13 = doc.addObject("Sketcher::SketchObject", "Sketch012")
body.addObject(sketch13)
sketch13.AttachmentSupport = (doc.XY_Plane, [""])
sketch13.MapMode = "FlatFace"
sketch13.AttachmentOffset = App.Placement(Vector(0, 0, 2), App.Rotation())
sketch13.addGeometry(Part.Circle(Vector(0, 0, 0), Vector(0, 0, 1), 71), False)
sketch13.addGeometry(Part.Circle(Vector(0, 0, 0), Vector(0, 0, 1), 51), False)
sketch13.addConstraint(Sketcher.Constraint("Coincident", 0, 3, -1, 1))
sketch13.addConstraint(Sketcher.Constraint("Coincident", 1, 3, -1, 1))
sketch13.addConstraint(Sketcher.Constraint("Diameter", 0, 142.068817))
sketch13.addConstraint(Sketcher.Constraint("Diameter", 1, 101.944795))
pocket6 = doc.addObject("PartDesign::Pocket", "Pocket005")
body.addObject(pocket6)
pocket6.Profile = sketch13
pocket6.Length = 57
pocket6.Reversed = True

# Sketch on XY plane
sketch14 = doc.addObject("Sketcher::SketchObject", "Sketch013")
body.addObject(sketch14)
sketch14.AttachmentSupport = (doc.XY_Plane, [""])
sketch14.MapMode = "FlatFace"
sketch14.AttachmentOffset = App.Placement(Vector(0, 0, 2), App.Rotation())
sketch14.addGeometry(Part.Circle(Vector(0, 0, 0), Vector(0, 0, 1), 79), False)
sketch14.addGeometry(Part.Circle(Vector(0, 0, 0), Vector(0, 0, 1), 57), False)
sketch14.addConstraint(Sketcher.Constraint("Coincident", 0, 3, -1, 1))
sketch14.addConstraint(Sketcher.Constraint("Coincident", 1, 3, -1, 1))
sketch14.addConstraint(Sketcher.Constraint("Diameter", 1, 114.0))
sketch14.addConstraint(Sketcher.Constraint("Diameter", 0, 158.288467))
pocket7 = doc.addObject("PartDesign::Pocket", "Pocket006")
body.addObject(pocket7)
pocket7.Profile = sketch14
pocket7.Length = 57

# Sketch on XY plane
sketch15 = doc.addObject("Sketcher::SketchObject", "Sketch014")
body.addObject(sketch15)
sketch15.AttachmentSupport = (doc.XY_Plane, [""])
sketch15.MapMode = "FlatFace"
sketch15.AttachmentOffset = App.Placement(Vector(0, 0, 2), App.Rotation())
sketch15.addGeometry(Part.ArcOfCircle(Part.Circle(Vector(0, 0, 0), Vector(0, 0, 1), 57), math.radians(84.99), math.radians(90)), False)
sketch15.addGeometry(Part.ArcOfCircle(Part.Circle(Vector(0, 0, 0), Vector(0, 0, 1), 57), math.radians(90), math.radians(95.01)), False)
sketch15.addGeometry(Part.LineSegment(Vector(-5, 56.8, 0), Vector(-4.6, 52.8, 0)), False)
sketch15.addGeometry(Part.ArcOfCircle(Part.Circle(Vector(0, 0, 0), Vector(0, 0, 1), 53), math.radians(84.99), math.radians(95.01)), False)
sketch15.addGeometry(Part.LineSegment(Vector(4.6, 52.8, 0), Vector(5, 56.8, 0)), False)
sketch15.addGeometry(Part.ArcOfCircle(Part.Circle(Vector(0, 0, 0), Vector(0, 0, 1), 57), math.radians(0), math.radians(5.01)), False)
sketch15.addGeometry(Part.LineSegment(Vector(56.8, 5, 0), Vector(52.8, 4.6, 0)), False)
sketch15.addGeometry(Part.ArcOfCircle(Part.Circle(Vector(0, 0, 0), Vector(0, 0, 1), 53), math.radians(-5.01), math.radians(5.01)), False)
sketch15.addGeometry(Part.LineSegment(Vector(52.8, -4.6, 0), Vector(56.8, -5, 0)), False)
sketch15.addGeometry(Part.ArcOfCircle(Part.Circle(Vector(0, 0, 0), Vector(0, 0, 1), 57), math.radians(-5.01), math.radians(0)), False)
sketch15.addGeometry(Part.ArcOfCircle(Part.Circle(Vector(0, 0, 0), Vector(0, 0, 1), 53), math.radians(174.99), math.radians(185.01)), False)
sketch15.addGeometry(Part.LineSegment(Vector(-52.8, 4.6, 0), Vector(-57, 5, 0)), False)
sketch15.addGeometry(Part.LineSegment(Vector(-57, 5, 0), Vector(-57, -5, 0)), False)
sketch15.addGeometry(Part.LineSegment(Vector(-57, -5, 0), Vector(-52.8, -4.6, 0)), False)
sketch15.addGeometry(Part.ArcOfCircle(Part.Circle(Vector(0, 0, 0), Vector(0, 0, 1), 53), math.radians(-95.01), math.radians(-84.99)), False)
sketch15.addGeometry(Part.LineSegment(Vector(-4.6, -52.8, 0), Vector(-5, -57, 0)), False)
sketch15.addGeometry(Part.LineSegment(Vector(-5, -57, 0), Vector(5, -57, 0)), False)
sketch15.addGeometry(Part.LineSegment(Vector(5, -57, 0), Vector(4.6, -52.8, 0)), False)
sketch15.addConstraint(Sketcher.Constraint("Tangent", 0, 2, 1, 1))
sketch15.addConstraint(Sketcher.Constraint("Coincident", 1, 2, 2, 1))
sketch15.addConstraint(Sketcher.Constraint("Coincident", 2, 2, 3, 2))
sketch15.addConstraint(Sketcher.Constraint("Coincident", 3, 1, 4, 1))
sketch15.addConstraint(Sketcher.Constraint("Coincident", 4, 2, 0, 1))
sketch15.addConstraint(Sketcher.Constraint("Coincident", 5, 2, 6, 1))
sketch15.addConstraint(Sketcher.Constraint("Coincident", 6, 2, 7, 2))
sketch15.addConstraint(Sketcher.Constraint("Coincident", 7, 1, 8, 1))
sketch15.addConstraint(Sketcher.Constraint("Coincident", 8, 2, 9, 1))
sketch15.addConstraint(Sketcher.Constraint("Tangent", 9, 2, 5, 1))
sketch15.addConstraint(Sketcher.Constraint("Coincident", 10, 1, 11, 1))
sketch15.addConstraint(Sketcher.Constraint("Coincident", 11, 2, 12, 1))
sketch15.addConstraint(Sketcher.Constraint("Coincident", 12, 2, 13, 1))
sketch15.addConstraint(Sketcher.Constraint("Coincident", 13, 2, 10, 2))
sketch15.addConstraint(Sketcher.Constraint("Coincident", 14, 1, 15, 1))
sketch15.addConstraint(Sketcher.Constraint("Coincident", 15, 2, 16, 1))
sketch15.addConstraint(Sketcher.Constraint("Coincident", 16, 2, 17, 1))
sketch15.addConstraint(Sketcher.Constraint("Coincident", 17, 2, 14, 2))
sketch15.addConstraint(Sketcher.Constraint("Vertical", 12))
sketch15.addConstraint(Sketcher.Constraint("Horizontal", 16))
sketch15.addConstraint(Sketcher.Constraint("Coincident", 0, 3, -1, 1))
sketch15.addConstraint(Sketcher.Constraint("Coincident", 3, 3, -1, 1))
sketch15.addConstraint(Sketcher.Constraint("Coincident", 5, 3, -1, 1))
sketch15.addConstraint(Sketcher.Constraint("Coincident", 7, 3, -1, 1))
sketch15.addConstraint(Sketcher.Constraint("Coincident", 10, 3, -1, 1))
sketch15.addConstraint(Sketcher.Constraint("Coincident", 14, 3, -1, 1))
sketch15.addConstraint(Sketcher.Constraint("Equal", 0, 1))
sketch15.addConstraint(Sketcher.Constraint("Equal", 1, 5))
sketch15.addConstraint(Sketcher.Constraint("Equal", 3, 7))
sketch15.addConstraint(Sketcher.Constraint("Equal", 5, 9))
sketch15.addConstraint(Sketcher.Constraint("Equal", 7, 10))
sketch15.addConstraint(Sketcher.Constraint("Equal", 10, 14))
sketch15.addConstraint(Sketcher.Constraint("PointOnObject", 0, 2, -2))
sketch15.addConstraint(Sketcher.Constraint("PointOnObject", 9, 2, -1))
sketch15.addConstraint(Sketcher.Constraint("Perpendicular", 2, 6))
sketch15.addConstraint(Sketcher.Constraint("Perpendicular", 4, 8))
sketch15.addConstraint(Sketcher.Constraint("Parallel", 8, 11))
sketch15.addConstraint(Sketcher.Constraint("Parallel", 6, 13))
sketch15.addConstraint(Sketcher.Constraint("Perpendicular", 11, 15))
sketch15.addConstraint(Sketcher.Constraint("Perpendicular", 13, 17))
sketch15.addConstraint(Sketcher.Constraint("Horizontal", 2, 2, 3, 1))
sketch15.addConstraint(Sketcher.Constraint("Horizontal", 1, 2, 4, 2))
sketch15.addConstraint(Sketcher.Constraint("Horizontal", 6, 2, 10, 1))
sketch15.addConstraint(Sketcher.Constraint("Horizontal", 7, 1, 13, 2))
sketch15.addConstraint(Sketcher.Constraint("Horizontal", 14, 1, 17, 2))
sketch15.addConstraint(Sketcher.Constraint("Vertical", 6, 2, 7, 1))
sketch15.addConstraint(Sketcher.Constraint("Vertical", 2, 2, 14, 1))
sketch15.addConstraint(Sketcher.Constraint("Equal", 16, 12))
sketch15.addConstraint(Sketcher.Constraint("Equal", 13, 15))
sketch15.addConstraint(Sketcher.Constraint("Radius", 0, 57.0))
sketch15.addConstraint(Sketcher.Constraint("Radius", 3, 53.0))
sketch15.addConstraint(Sketcher.Constraint("DistanceX", 16, 1, 16, 2, 10.0))
sketch15.addConstraint(Sketcher.Constraint("DistanceX", 11, 2, -1, 1, 57.0))
sketch15.addConstraint(Sketcher.Constraint("DistanceY", 2, 2, 1, 2, 3.984699))
pad8 = doc.addObject("PartDesign::Pad", "Pad007")
body.addObject(pad8)
pad8.Profile = sketch15
pad8.Length = 22

# Sketch on XY plane
sketch16 = doc.addObject("Sketcher::SketchObject", "Sketch015")
body.addObject(sketch16)
sketch16.AttachmentSupport = (doc.XY_Plane, [""])
sketch16.MapMode = "FlatFace"
sketch16.AttachmentOffset = App.Placement(Vector(0, 0, 24), App.Rotation())
sketch16.addGeometry(Part.Circle(Vector(0, 0, 0), Vector(0, 0, 1), 90), False)
sketch16.addGeometry(Part.Circle(Vector(0, 0, 0), Vector(0, 0, 1), 57), False)
sketch16.addConstraint(Sketcher.Constraint("Coincident", 0, 3, -1, 1))
sketch16.addConstraint(Sketcher.Constraint("Coincident", 1, 3, -1, 1))
sketch16.addConstraint(Sketcher.Constraint("Diameter", 1, 114.0))
sketch16.addConstraint(Sketcher.Constraint("Diameter", 0, 179.176222))
pocket8 = doc.addObject("PartDesign::Pocket", "Pocket007")
body.addObject(pocket8)
pocket8.Profile = sketch16
pocket8.Length = 75

# Sketch on XY plane
sketch17 = doc.addObject("Sketcher::SketchObject", "Sketch016")
body.addObject(sketch17)
sketch17.AttachmentSupport = (doc.XY_Plane, [""])
sketch17.MapMode = "FlatFace"
sketch17.AttachmentOffset = App.Placement(Vector(0, 0, 2), App.Rotation())
sketch17.addGeometry(Part.Circle(Vector(0, 0, 0), Vector(0, 0, 1), 63), False)
sketch17.addGeometry(Part.Circle(Vector(0, 0, 0), Vector(0, 0, 1), 55), False)
sketch17.addConstraint(Sketcher.Constraint("Coincident", 0, 3, -1, 1))
sketch17.addConstraint(Sketcher.Constraint("Coincident", 1, 3, -1, 1))
sketch17.addConstraint(Sketcher.Constraint("Diameter", 1, 110.0))
sketch17.addConstraint(Sketcher.Constraint("Diameter", 0, 126.170512))
pocket9 = doc.addObject("PartDesign::Pocket", "Pocket008")
body.addObject(pocket9)
pocket9.Profile = sketch17
pocket9.Length = 10

# Sketch on XY plane
sketch18 = doc.addObject("Sketcher::SketchObject", "Sketch017")
body.addObject(sketch18)
sketch18.AttachmentSupport = (doc.XY_Plane, [""])
sketch18.MapMode = "FlatFace"
sketch18.addGeometry(Part.Circle(Vector(0, 0, 0), Vector(0, 0, 1), 63), False)
sketch18.addGeometry(Part.Circle(Vector(0, 0, 0), Vector(0, 0, 1), 55), False)
sketch18.addConstraint(Sketcher.Constraint("Coincident", 0, 3, -1, 1))
sketch18.addConstraint(Sketcher.Constraint("Coincident", 1, 3, -1, 1))
sketch18.addConstraint(Sketcher.Constraint("Diameter", 1, 110.0))
sketch18.addConstraint(Sketcher.Constraint("Diameter", 0, 125.431553))
pocket10 = doc.addObject("PartDesign::Pocket", "Pocket009")
body.addObject(pocket10)
pocket10.Profile = sketch18
pocket10.Length = 43
pocket10.Reversed = True

# Sketch on XY plane
sketch19 = doc.addObject("Sketcher::SketchObject", "Sketch018")
body.addObject(sketch19)
sketch19.AttachmentSupport = (doc.XY_Plane, [""])
sketch19.MapMode = "FlatFace"
sketch19.AttachmentOffset = App.Placement(Vector(0, 0, 24), App.Rotation())
sketch19.addGeometry(Part.Circle(Vector(-55, 0, 0), Vector(0, 0, 1), 9), False)
sketch19.addGeometry(Part.Circle(Vector(0, -55, 0), Vector(0, 0, 1), 8), False)
sketch19.addGeometry(Part.Circle(Vector(55, 0, 0), Vector(0, 0, 1), 12), False)
sketch19.addGeometry(Part.Circle(Vector(0, 53, 0), Vector(0, 0, 1), 7), False)
sketch19.addConstraint(Sketcher.Constraint("Symmetric", 0, 3, 2, 3, -1, 1))
sketch19.addConstraint(Sketcher.Constraint("PointOnObject", 0, 3, -1))
sketch19.addConstraint(Sketcher.Constraint("PointOnObject", 1, 3, -2))
sketch19.addConstraint(Sketcher.Constraint("PointOnObject", 3, 3, -2))
sketch19.addConstraint(Sketcher.Constraint("DistanceX", 0, 3, -1, 1, 55.0))
sketch19.addConstraint(Sketcher.Constraint("DistanceY", 1, 3, -1, 1, 55.0))
sketch19.addConstraint(Sketcher.Constraint("DistanceY", -1, 1, 3, 3, 53.0))
sketch19.addConstraint(Sketcher.Constraint("Diameter", 2, 23.06434))
sketch19.addConstraint(Sketcher.Constraint("Diameter", 0, 17.257432))
sketch19.addConstraint(Sketcher.Constraint("Diameter", 1, 15.542443))
sketch19.addConstraint(Sketcher.Constraint("Diameter", 3, 14.105338))
pocket11 = doc.addObject("PartDesign::Pocket", "Pocket010")
body.addObject(pocket11)
pocket11.Profile = sketch19
pocket11.Length = 22

# Sketch on XY plane
sketch20 = doc.addObject("Sketcher::SketchObject", "Sketch019")
body.addObject(sketch20)
sketch20.AttachmentSupport = (doc.XY_Plane, [""])
sketch20.MapMode = "FlatFace"
sketch20.AttachmentOffset = App.Placement(Vector(0, 0, 2), App.Rotation())
sketch20.addGeometry(Part.Circle(Vector(0, 0, 0), Vector(0, 0, 1), 55), False)
sketch20.addConstraint(Sketcher.Constraint("Coincident", 0, 3, -1, 1))
sketch20.addConstraint(Sketcher.Constraint("Diameter", 0, 110.0))
pad9 = doc.addObject("PartDesign::Pad", "Pad008")
body.addObject(pad9)
pad9.Profile = sketch20
pad9.Length = 2
pad9.Reversed = True

# Sketch on XY plane
sketch21 = doc.addObject("Sketcher::SketchObject", "Sketch020")
body.addObject(sketch21)
sketch21.AttachmentSupport = (doc.XY_Plane, [""])
sketch21.MapMode = "FlatFace"
sketch21.AttachmentOffset = App.Placement(Vector(0, 0, 9), App.Rotation())
sketch21.addGeometry(Part.LineSegment(Vector(16, 6, 0), Vector(16, -6, 0)), False)
sketch21.addGeometry(Part.LineSegment(Vector(16, -6, 0), Vector(22, -6, 0)), False)
sketch21.addGeometry(Part.LineSegment(Vector(22, -6, 0), Vector(22, 6, 0)), False)
sketch21.addGeometry(Part.LineSegment(Vector(22, 6, 0), Vector(16, 6, 0)), False)
sketch21.addConstraint(Sketcher.Constraint("Coincident", 0, 2, 1, 1))
sketch21.addConstraint(Sketcher.Constraint("Coincident", 1, 2, 2, 1))
sketch21.addConstraint(Sketcher.Constraint("Coincident", 2, 2, 3, 1))
sketch21.addConstraint(Sketcher.Constraint("Coincident", 3, 2, 0, 1))
sketch21.addConstraint(Sketcher.Constraint("Vertical", 0))
sketch21.addConstraint(Sketcher.Constraint("Horizontal", 1))
sketch21.addConstraint(Sketcher.Constraint("Vertical", 2))
sketch21.addConstraint(Sketcher.Constraint("Horizontal", 3))
sketch21.addConstraint(Sketcher.Constraint("DistanceX", 1, 1, 1, 2, 5.0))
sketch21.addConstraint(Sketcher.Constraint("DistanceY", 0, 2, 0, 1, 12.0))
sketch21.addConstraint(Sketcher.Constraint("DistanceY", 0, 2, -1, 1, 6.0))
sketch21.addConstraint(Sketcher.Constraint("DistanceX", -1, 1, 0, 2, 16.5))
pocket12 = doc.addObject("PartDesign::Pocket", "Pocket011")
body.addObject(pocket12)
pocket12.Profile = sketch21
pocket12.Length = 3

# Sketch on XY plane
sketch22 = doc.addObject("Sketcher::SketchObject", "Sketch021")
body.addObject(sketch22)
sketch22.AttachmentSupport = (doc.XY_Plane, [""])
sketch22.MapMode = "FlatFace"
sketch22.AttachmentOffset = App.Placement(Vector(0, 0, 2), App.Rotation())
sketch22.addGeometry(Part.Circle(Vector(0, 44, 0), Vector(0, 0, 1), 6), False)
sketch22.addGeometry(Part.Circle(Vector(44, 0, 0), Vector(0, 0, 1), 6), False)
sketch22.addGeometry(Part.Circle(Vector(0, -44, 0), Vector(0, 0, 1), 6), False)
sketch22.addGeometry(Part.Circle(Vector(-44, 0, 0), Vector(0, 0, 1), 6), False)
sketch22.addConstraint(Sketcher.Constraint("Equal", 0, 1))
sketch22.addConstraint(Sketcher.Constraint("Equal", 1, 2))
sketch22.addConstraint(Sketcher.Constraint("Equal", 2, 3))
sketch22.addConstraint(Sketcher.Constraint("Symmetric", 0, 3, 2, 3, -1, 1))
sketch22.addConstraint(Sketcher.Constraint("Symmetric", 1, 3, 3, 3, -1, 1))
sketch22.addConstraint(Sketcher.Constraint("PointOnObject", 0, 3, -2))
sketch22.addConstraint(Sketcher.Constraint("PointOnObject", 1, 3, -1))
sketch22.addConstraint(Sketcher.Constraint("Diameter", 0, 12.5))
sketch22.addConstraint(Sketcher.Constraint("DistanceY", 2, 3, 0, 3, 89.0))
sketch22.addConstraint(Sketcher.Constraint("DistanceX", 3, 3, 1, 3, 89.0))
pocket13 = doc.addObject("PartDesign::Pocket", "Pocket012")
body.addObject(pocket13)
pocket13.Profile = sketch22
pocket13.Length = 3

# Sketch on XY plane
sketch23 = doc.addObject("Sketcher::SketchObject", "Sketch022")
body.addObject(sketch23)
sketch23.AttachmentSupport = (doc.XY_Plane, [""])
sketch23.MapMode = "FlatFace"
sketch23.AttachmentOffset = App.Placement(Vector(0, 0, 2), App.Rotation())
sketch23.addGeometry(Part.LineSegment(Vector(-25, 35, 0), Vector(-25, 25, 0)), False)
sketch23.addGeometry(Part.LineSegment(Vector(-25, 25, 0), Vector(25, 25, 0)), False)
sketch23.addGeometry(Part.LineSegment(Vector(25, 25, 0), Vector(25, 35, 0)), False)
sketch23.addGeometry(Part.LineSegment(Vector(25, 35, 0), Vector(-25, 35, 0)), False)
sketch23.addGeometry(Part.LineSegment(Vector(-25, -25, 0), Vector(-25, -35, 0)), False)
sketch23.addGeometry(Part.LineSegment(Vector(-25, -35, 0), Vector(25, -35, 0)), False)
sketch23.addGeometry(Part.LineSegment(Vector(25, -35, 0), Vector(25, -25, 0)), False)
sketch23.addGeometry(Part.LineSegment(Vector(25, -25, 0), Vector(-25, -25, 0)), False)
sketch23.addConstraint(Sketcher.Constraint("Coincident", 0, 2, 1, 1))
sketch23.addConstraint(Sketcher.Constraint("Coincident", 1, 2, 2, 1))
sketch23.addConstraint(Sketcher.Constraint("Coincident", 2, 2, 3, 1))
sketch23.addConstraint(Sketcher.Constraint("Coincident", 3, 2, 0, 1))
sketch23.addConstraint(Sketcher.Constraint("Coincident", 4, 2, 5, 1))
sketch23.addConstraint(Sketcher.Constraint("Coincident", 5, 2, 6, 1))
sketch23.addConstraint(Sketcher.Constraint("Coincident", 6, 2, 7, 1))
sketch23.addConstraint(Sketcher.Constraint("Coincident", 7, 2, 4, 1))
sketch23.addConstraint(Sketcher.Constraint("Vertical", 0))
sketch23.addConstraint(Sketcher.Constraint("Horizontal", 1))
sketch23.addConstraint(Sketcher.Constraint("Vertical", 2))
sketch23.addConstraint(Sketcher.Constraint("Horizontal", 3))
sketch23.addConstraint(Sketcher.Constraint("Vertical", 4))
sketch23.addConstraint(Sketcher.Constraint("Horizontal", 5))
sketch23.addConstraint(Sketcher.Constraint("Vertical", 6))
sketch23.addConstraint(Sketcher.Constraint("Horizontal", 7))
sketch23.addConstraint(Sketcher.Constraint("Symmetric", 2, 2, 4, 2, -1, 1))
sketch23.addConstraint(Sketcher.Constraint("Symmetric", 0, 2, 6, 2, -1, 1))
sketch23.addConstraint(Sketcher.Constraint("Vertical", 3, 2, 4, 2))
sketch23.addConstraint(Sketcher.Constraint("DistanceX", 1, 1, 1, 2, 50.0))
sketch23.addConstraint(Sketcher.Constraint("DistanceY", 0, 2, 0, 1, 10.0))
sketch23.addConstraint(Sketcher.Constraint("DistanceY", -1, 1, 0, 2, 25.0))
pocket14 = doc.addObject("PartDesign::Pocket", "Pocket013")
body.addObject(pocket14)
pocket14.Profile = sketch23
pocket14.Length = 3

doc.recompute()
